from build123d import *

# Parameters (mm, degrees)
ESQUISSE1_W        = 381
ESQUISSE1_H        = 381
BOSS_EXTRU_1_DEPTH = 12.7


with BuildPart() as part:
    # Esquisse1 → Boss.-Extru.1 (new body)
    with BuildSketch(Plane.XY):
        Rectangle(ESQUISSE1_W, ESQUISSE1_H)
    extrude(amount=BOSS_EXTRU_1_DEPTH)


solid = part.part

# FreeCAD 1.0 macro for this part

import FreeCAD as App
import Part
import Sketcher
Q = App.Units.Quantity


def add_polygon(sketch, points):
    """Adds a closed chain of lines whose ends are joined by coincident constraints."""
    first, n = sketch.GeometryCount, len(points)
    for a, b in zip(points, points[1:] + points[:1]):
        sketch.addGeometry(Part.LineSegment(App.Vector(*a, 0), App.Vector(*b, 0)), False)
    for i in range(n):
        sketch.addConstraint(Sketcher.Constraint("Coincident", first + i, 2, first + (i + 1) % n, 1))

doc = App.newDocument("Part")
body = doc.addObject("PartDesign::Body", "Body")

# Sketch on XY plane
sketch1 = body.newObject("Sketcher::SketchObject", "Sketch")
sketch1.AttachmentSupport = (doc.getObject("XY_Plane"), [""])
sketch1.MapMode = "FlatFace"
add_polygon(sketch1, [(-190, 190), (-190, -190), (190, -190), (190, 190)])  # lines 0-3
sketch1.addConstraint(Sketcher.Constraint("Vertical", 0))
sketch1.addConstraint(Sketcher.Constraint("Horizontal", 1))
sketch1.addConstraint(Sketcher.Constraint("Vertical", 2))
sketch1.addConstraint(Sketcher.Constraint("Horizontal", 3))
sketch1.addConstraint(Sketcher.Constraint("Symmetric", 0, 2, 2, 2, -1, 1))
sketch1.addConstraint(Sketcher.Constraint("Equal", 3, 0))
sketch1.addConstraint(Sketcher.Constraint("DistanceX", 1, 1, 1, 2, Q("15 in")))
pad1 = body.newObject("PartDesign::Pad", "Pad")
pad1.Profile = sketch1
pad1.Length = Q("0.5 in")

doc.recompute()
